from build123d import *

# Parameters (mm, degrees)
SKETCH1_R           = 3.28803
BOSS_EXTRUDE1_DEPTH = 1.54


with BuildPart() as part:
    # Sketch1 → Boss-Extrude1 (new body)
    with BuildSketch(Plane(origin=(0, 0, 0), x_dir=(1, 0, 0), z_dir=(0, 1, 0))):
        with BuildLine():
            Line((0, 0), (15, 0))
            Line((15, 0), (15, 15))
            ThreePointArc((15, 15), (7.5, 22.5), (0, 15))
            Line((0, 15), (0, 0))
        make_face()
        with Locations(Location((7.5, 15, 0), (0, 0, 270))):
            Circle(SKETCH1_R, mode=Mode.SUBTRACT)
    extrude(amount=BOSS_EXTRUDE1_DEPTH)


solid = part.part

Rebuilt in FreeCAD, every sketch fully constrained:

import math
import FreeCAD as App
import Part
import Sketcher
from FreeCAD import Vector

doc = App.newDocument("Part")
body = doc.addObject("PartDesign::Body", "Body")

# Sketch on XZ plane
sketch1 = body.newObject("Sketcher::SketchObject", "Sketch")
sketch1.AttachmentSupport = (doc.getObject("XZ_Plane"), [""])
sketch1.MapMode = "FlatFace"
sketch1.addGeometry(Part.LineSegment(Vector(0, 0, 0), Vector(15, 0, 0)), False)
sketch1.addGeometry(Part.LineSegment(Vector(15, 0, 0), Vector(15, -15, 0)), False)
sketch1.addGeometry(Part.ArcOfCircle(Part.Circle(Vector(7.5, -15, 0), Vector(0, 0, 1), 7.5), math.radians(180), math.radians(360)), False)
sketch1.addGeometry(Part.LineSegment(Vector(0, -15, 0), Vector(0, 0, 0)), False)
sketch1.addGeometry(Part.Circle(Vector(7.5, -15, 0), Vector(0, 0, 1), 3.3), False)
sketch1.addConstraint(Sketcher.Constraint("Coincident", 0, 2, 1, 1))
sketch1.addConstraint(Sketcher.Constraint("Tangent", 1, 2, 2, 2))
sketch1.addConstraint(Sketcher.Constraint("Tangent", 2, 1, 3, 1))
sketch1.addConstraint(Sketcher.Constraint("Coincident", 3, 2, 0, 1))
sketch1.addConstraint(Sketcher.Constraint("Horizontal", 0))
sketch1.addConstraint(Sketcher.Constraint("Vertical", 1))
sketch1.addConstraint(Sketcher.Constraint("Vertical", 3))
sketch1.addConstraint(Sketcher.Constraint("Coincident", 3, 2, -1, 1))
sketch1.addConstraint(Sketcher.Constraint("Coincident", 4, 3, 2, 3))
sketch1.addConstraint(Sketcher.Constraint("Equal", 0, 1))
sketch1.addConstraint(Sketcher.Constraint("Radius", 2, 7.5))
sketch1.addConstraint(Sketcher.Constraint("Diameter", 4, 6.57606))
pad1 = body.newObject("PartDesign::Pad", "Pad")
pad1.Profile = sketch1
pad1.Length = 1.54
pad1.Reversed = True

doc.recompute()
